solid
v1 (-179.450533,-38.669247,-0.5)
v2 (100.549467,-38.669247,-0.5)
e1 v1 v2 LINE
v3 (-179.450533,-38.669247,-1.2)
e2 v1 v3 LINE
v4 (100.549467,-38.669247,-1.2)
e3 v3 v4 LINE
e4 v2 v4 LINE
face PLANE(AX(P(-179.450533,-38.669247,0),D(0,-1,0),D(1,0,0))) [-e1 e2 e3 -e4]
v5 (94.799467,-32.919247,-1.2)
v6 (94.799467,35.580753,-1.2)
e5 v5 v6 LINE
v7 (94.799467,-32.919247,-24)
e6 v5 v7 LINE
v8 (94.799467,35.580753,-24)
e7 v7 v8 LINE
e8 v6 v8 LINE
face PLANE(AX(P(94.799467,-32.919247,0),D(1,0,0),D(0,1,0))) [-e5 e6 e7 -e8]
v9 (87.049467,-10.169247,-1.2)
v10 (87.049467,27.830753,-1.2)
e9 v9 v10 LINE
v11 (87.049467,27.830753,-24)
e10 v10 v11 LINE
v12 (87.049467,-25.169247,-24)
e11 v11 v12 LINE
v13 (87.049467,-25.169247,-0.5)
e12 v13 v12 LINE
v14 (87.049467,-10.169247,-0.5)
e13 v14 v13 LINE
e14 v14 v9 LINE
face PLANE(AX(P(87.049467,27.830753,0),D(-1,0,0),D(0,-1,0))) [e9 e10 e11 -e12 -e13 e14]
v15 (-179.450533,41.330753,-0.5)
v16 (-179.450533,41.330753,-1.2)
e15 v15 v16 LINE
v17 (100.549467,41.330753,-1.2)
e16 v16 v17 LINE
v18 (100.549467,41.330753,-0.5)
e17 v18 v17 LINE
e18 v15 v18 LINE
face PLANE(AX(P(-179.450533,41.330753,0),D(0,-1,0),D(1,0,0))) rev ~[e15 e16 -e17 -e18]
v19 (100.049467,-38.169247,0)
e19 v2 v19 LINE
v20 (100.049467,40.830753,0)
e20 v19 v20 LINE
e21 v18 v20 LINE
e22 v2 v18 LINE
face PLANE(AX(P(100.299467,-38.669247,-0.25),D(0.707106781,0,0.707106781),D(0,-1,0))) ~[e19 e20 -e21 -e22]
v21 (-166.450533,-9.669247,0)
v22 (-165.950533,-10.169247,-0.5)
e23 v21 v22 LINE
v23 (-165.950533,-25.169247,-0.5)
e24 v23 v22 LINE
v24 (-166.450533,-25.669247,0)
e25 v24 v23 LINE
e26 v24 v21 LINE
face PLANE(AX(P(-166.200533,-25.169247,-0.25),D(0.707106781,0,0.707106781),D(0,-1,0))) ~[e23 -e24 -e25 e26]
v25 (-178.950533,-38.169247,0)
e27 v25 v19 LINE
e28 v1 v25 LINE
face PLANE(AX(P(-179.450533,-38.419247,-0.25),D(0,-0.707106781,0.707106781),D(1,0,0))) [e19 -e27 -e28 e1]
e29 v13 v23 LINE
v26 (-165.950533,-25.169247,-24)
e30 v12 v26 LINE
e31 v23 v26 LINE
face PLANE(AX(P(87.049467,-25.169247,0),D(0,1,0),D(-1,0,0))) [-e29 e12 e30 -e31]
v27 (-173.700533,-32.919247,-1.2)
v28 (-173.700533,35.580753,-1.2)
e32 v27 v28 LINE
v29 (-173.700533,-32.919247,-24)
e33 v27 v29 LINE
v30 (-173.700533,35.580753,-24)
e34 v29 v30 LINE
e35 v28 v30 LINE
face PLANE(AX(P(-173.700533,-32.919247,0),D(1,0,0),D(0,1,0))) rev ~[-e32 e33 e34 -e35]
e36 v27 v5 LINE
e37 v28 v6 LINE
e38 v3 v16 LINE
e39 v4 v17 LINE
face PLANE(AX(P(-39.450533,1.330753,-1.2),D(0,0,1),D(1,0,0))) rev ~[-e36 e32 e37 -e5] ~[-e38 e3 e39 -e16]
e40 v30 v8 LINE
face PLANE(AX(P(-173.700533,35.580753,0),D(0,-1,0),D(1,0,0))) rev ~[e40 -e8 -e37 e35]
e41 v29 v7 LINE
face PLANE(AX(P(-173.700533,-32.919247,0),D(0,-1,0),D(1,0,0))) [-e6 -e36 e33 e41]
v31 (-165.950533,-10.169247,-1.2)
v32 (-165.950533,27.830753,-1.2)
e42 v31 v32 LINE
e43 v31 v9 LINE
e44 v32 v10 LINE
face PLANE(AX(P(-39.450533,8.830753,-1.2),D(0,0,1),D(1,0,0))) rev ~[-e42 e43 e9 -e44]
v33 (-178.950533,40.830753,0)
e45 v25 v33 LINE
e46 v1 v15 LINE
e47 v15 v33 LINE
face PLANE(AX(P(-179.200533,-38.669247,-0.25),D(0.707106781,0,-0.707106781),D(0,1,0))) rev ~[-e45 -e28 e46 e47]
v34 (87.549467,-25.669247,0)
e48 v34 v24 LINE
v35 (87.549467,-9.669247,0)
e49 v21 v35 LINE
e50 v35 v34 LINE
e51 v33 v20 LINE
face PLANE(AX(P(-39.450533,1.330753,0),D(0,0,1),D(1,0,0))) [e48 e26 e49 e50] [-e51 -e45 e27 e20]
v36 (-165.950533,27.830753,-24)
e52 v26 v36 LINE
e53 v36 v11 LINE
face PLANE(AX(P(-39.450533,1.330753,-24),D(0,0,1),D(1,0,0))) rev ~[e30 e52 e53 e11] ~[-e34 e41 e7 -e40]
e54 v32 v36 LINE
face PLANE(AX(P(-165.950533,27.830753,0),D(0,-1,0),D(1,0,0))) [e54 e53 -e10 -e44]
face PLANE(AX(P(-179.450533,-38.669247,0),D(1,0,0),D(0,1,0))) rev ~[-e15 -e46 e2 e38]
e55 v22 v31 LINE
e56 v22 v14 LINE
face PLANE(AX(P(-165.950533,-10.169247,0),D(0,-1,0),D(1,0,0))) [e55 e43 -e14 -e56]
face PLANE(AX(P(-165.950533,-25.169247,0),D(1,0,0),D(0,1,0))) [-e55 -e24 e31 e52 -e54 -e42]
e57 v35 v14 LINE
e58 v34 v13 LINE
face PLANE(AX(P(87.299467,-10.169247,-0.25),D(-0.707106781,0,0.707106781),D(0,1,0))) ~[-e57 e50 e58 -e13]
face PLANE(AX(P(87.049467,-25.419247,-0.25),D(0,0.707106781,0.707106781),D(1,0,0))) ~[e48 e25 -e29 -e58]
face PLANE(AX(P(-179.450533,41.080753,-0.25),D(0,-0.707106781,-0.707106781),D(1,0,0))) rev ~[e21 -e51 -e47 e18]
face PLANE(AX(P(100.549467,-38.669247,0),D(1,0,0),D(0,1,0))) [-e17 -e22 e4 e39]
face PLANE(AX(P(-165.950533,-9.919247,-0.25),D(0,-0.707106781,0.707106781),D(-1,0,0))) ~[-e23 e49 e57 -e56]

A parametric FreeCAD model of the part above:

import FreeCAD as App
import Part
import Sketcher

V = App.Vector
Q = App.Units.Quantity


def edges_at(feature, points):
    """Names of the edges that pass closest to the given points."""
    edges = feature.Shape.Edges
    near = lambda p: min(range(len(edges)), key=lambda i: edges[i].distToShape(Part.Vertex(*p))[0])
    return sorted({f"Edge{near(p) + 1}" for p in points})

doc = App.newDocument("Part")
body = doc.addObject("PartDesign::Body", "Body")

# Sketch on XY plane
sketch1 = body.newObject("Sketcher::SketchObject", "Sketch")
sketch1.AttachmentSupport = (doc.getObject("XY_Plane"), [""])
sketch1.MapMode = "FlatFace"
sketch1.addGeometry(Part.LineSegment(V(-166, 28, 0), V(-166, -10, 0)), False)
sketch1.addGeometry(Part.LineSegment(V(-166, -10, 0), V(87, -10, 0)), False)
sketch1.addGeometry(Part.LineSegment(V(87, -10, 0), V(87, 28, 0)), False)
sketch1.addGeometry(Part.LineSegment(V(87, 28, 0), V(-166, 28, 0)), False)
sketch1.addConstraint(Sketcher.Constraint("Coincident", 0, 2, 1, 1))
sketch1.addConstraint(Sketcher.Constraint("Coincident", 1, 2, 2, 1))
sketch1.addConstraint(Sketcher.Constraint("Coincident", 2, 2, 3, 1))
sketch1.addConstraint(Sketcher.Constraint("Coincident", 3, 2, 0, 1))
sketch1.addConstraint(Sketcher.Constraint("Vertical", 0))
sketch1.addConstraint(Sketcher.Constraint("Horizontal", 1))
sketch1.addConstraint(Sketcher.Constraint("Vertical", 2))
sketch1.addConstraint(Sketcher.Constraint("Horizontal", 3))
sketch1.addConstraint(Sketcher.Constraint("DistanceX", 1, 1, 1, 2, Q("253 mm")))
sketch1.addConstraint(Sketcher.Constraint("DistanceY", 0, 2, 0, 1, Q("38 mm")))
sketch1.addConstraint(Sketcher.Constraint("DistanceX", 0, 2, -1, 1, Q("165.950533 mm")))
sketch1.addConstraint(Sketcher.Constraint("DistanceY", 0, 2, -1, 1, Q("10.169247 mm")))
pad1 = body.newObject("PartDesign::Pad", "Pad")
pad1.Profile = sketch1
pad1.Length = 1.2
pad1.Reversed = True
body2 = doc.addObject("PartDesign::Body", "Body001")

# Sketch on XY plane
sketch2 = body2.newObject("Sketcher::SketchObject", "Sketch001")
sketch2.AttachmentSupport = (doc.getObject("XY_Plane001"), [""])
sketch2.MapMode = "FlatFace"
sketch2.addGeometry(Part.LineSegment(V(-179, 41, 0), V(-179, -39, 0)), False)
sketch2.addGeometry(Part.LineSegment(V(-179, -39, 0), V(101, -39, 0)), False)
sketch2.addGeometry(Part.LineSegment(V(101, -39, 0), V(101, 41, 0)), False)
sketch2.addGeometry(Part.LineSegment(V(101, 41, 0), V(-179, 41, 0)), False)
sketch2.addGeometry(Part.LineSegment(V(95, -33, 0), V(-174, -33, 0)), False)
sketch2.addGeometry(Part.LineSegment(V(-174, -33, 0), V(-174, 36, 0)), False)
sketch2.addGeometry(Part.LineSegment(V(-174, 36, 0), V(95, 36, 0)), False)
sketch2.addGeometry(Part.LineSegment(V(95, 36, 0), V(95, -33, 0)), False)
sketch2.addConstraint(Sketcher.Constraint("Coincident", 0, 2, 1, 1))
sketch2.addConstraint(Sketcher.Constraint("Coincident", 1, 2, 2, 1))
sketch2.addConstraint(Sketcher.Constraint("Coincident", 2, 2, 3, 1))
sketch2.addConstraint(Sketcher.Constraint("Coincident", 3, 2, 0, 1))
sketch2.addConstraint(Sketcher.Constraint("Coincident", 4, 2, 5, 1))
sketch2.addConstraint(Sketcher.Constraint("Coincident", 5, 2, 6, 1))
sketch2.addConstraint(Sketcher.Constraint("Coincident", 6, 2, 7, 1))
sketch2.addConstraint(Sketcher.Constraint("Coincident", 7, 2, 4, 1))
sketch2.addConstraint(Sketcher.Constraint("Vertical", 0))
sketch2.addConstraint(Sketcher.Constraint("Horizontal", 1))
sketch2.addConstraint(Sketcher.Constraint("Vertical", 2))
sketch2.addConstraint(Sketcher.Constraint("Horizontal", 3))
sketch2.addConstraint(Sketcher.Constraint("Horizontal", 4))
sketch2.addConstraint(Sketcher.Constraint("Vertical", 5))
sketch2.addConstraint(Sketcher.Constraint("Horizontal", 6))
sketch2.addConstraint(Sketcher.Constraint("Vertical", 7))
sketch2.addConstraint(Sketcher.Constraint("DistanceX", 1, 1, 1, 2, Q("280 mm")))
sketch2.addConstraint(Sketcher.Constraint("DistanceY", 0, 2, 0, 1, Q("80 mm")))
sketch2.addConstraint(Sketcher.Constraint("DistanceX", 4, 2, 4, 1, Q("268.5 mm")))
sketch2.addConstraint(Sketcher.Constraint("DistanceY", 5, 1, 5, 2, Q("68.5 mm")))
sketch2.addConstraint(Sketcher.Constraint("DistanceX", 0, 2, 4, 2, Q("5.75 mm")))
sketch2.addConstraint(Sketcher.Constraint("DistanceY", 0, 2, 4, 2, Q("5.75 mm")))
sketch2.addConstraint(Sketcher.Constraint("DistanceX", 0, 2, -1, 1, Q("179.450533 mm")))
sketch2.addConstraint(Sketcher.Constraint("DistanceY", 0, 2, -1, 1, Q("38.669247 mm")))
pad2 = body2.newObject("PartDesign::Pad", "Pad001")
pad2.Profile = sketch2
pad2.Length = 1.2
pad2.Reversed = True
body3 = doc.addObject("PartDesign::Body", "Body002")

# Sketch on XY plane
sketch3 = body3.newObject("Sketcher::SketchObject", "Sketch002")
sketch3.AttachmentSupport = (doc.getObject("XY_Plane002"), [""])
sketch3.MapMode = "FlatFace"
sketch3.addGeometry(Part.LineSegment(V(-174, 36, 0), V(-174, -33, 0)), False)
sketch3.addGeometry(Part.LineSegment(V(-174, -33, 0), V(95, -33, 0)), False)
sketch3.addGeometry(Part.LineSegment(V(95, -33, 0), V(95, 36, 0)), False)
sketch3.addGeometry(Part.LineSegment(V(95, 36, 0), V(-174, 36, 0)), False)
sketch3.addGeometry(Part.LineSegment(V(-166, -25, 0), V(-166, 28, 0)), False)
sketch3.addGeometry(Part.LineSegment(V(-166, 28, 0), V(87, 28, 0)), False)
sketch3.addGeometry(Part.LineSegment(V(87, 28, 0), V(87, -25, 0)), False)
sketch3.addGeometry(Part.LineSegment(V(87, -25, 0), V(-166, -25, 0)), False)
sketch3.addConstraint(Sketcher.Constraint("Coincident", 0, 2, 1, 1))
sketch3.addConstraint(Sketcher.Constraint("Coincident", 1, 2, 2, 1))
sketch3.addConstraint(Sketcher.Constraint("Coincident", 2, 2, 3, 1))
sketch3.addConstraint(Sketcher.Constraint("Coincident", 3, 2, 0, 1))
sketch3.addConstraint(Sketcher.Constraint("Coincident", 4, 2, 5, 1))
sketch3.addConstraint(Sketcher.Constraint("Coincident", 5, 2, 6, 1))
sketch3.addConstraint(Sketcher.Constraint("Coincident", 6, 2, 7, 1))
sketch3.addConstraint(Sketcher.Constraint("Coincident", 7, 2, 4, 1))
sketch3.addConstraint(Sketcher.Constraint("Vertical", 0))
sketch3.addConstraint(Sketcher.Constraint("Horizontal", 1))
sketch3.addConstraint(Sketcher.Constraint("Vertical", 2))
sketch3.addConstraint(Sketcher.Constraint("Horizontal", 3))
sketch3.addConstraint(Sketcher.Constraint("Vertical", 4))
sketch3.addConstraint(Sketcher.Constraint("Horizontal", 5))
sketch3.addConstraint(Sketcher.Constraint("Vertical", 6))
sketch3.addConstraint(Sketcher.Constraint("Horizontal", 7))
sketch3.addConstraint(Sketcher.Constraint("DistanceX", 5, 1, 5, 2, Q("253 mm")))
sketch3.addConstraint(Sketcher.Constraint("DistanceY", 4, 1, 4, 2, Q("53 mm")))
sketch3.addConstraint(Sketcher.Constraint("DistanceX", 1, 1, 1, 2, Q("268.5 mm")))
sketch3.addConstraint(Sketcher.Constraint("DistanceY", 0, 2, 0, 1, Q("68.5 mm")))
sketch3.addConstraint(Sketcher.Constraint("DistanceX", 3, 2, 4, 2, Q("7.75 mm")))
sketch3.addConstraint(Sketcher.Constraint("DistanceY", 4, 2, 3, 2, Q("7.75 mm")))
sketch3.addConstraint(Sketcher.Constraint("DistanceX", 0, 2, -1, 1, Q("173.700533 mm")))
sketch3.addConstraint(Sketcher.Constraint("DistanceY", 0, 2, -1, 1, Q("32.919247 mm")))
pad3 = body3.newObject("PartDesign::Pad", "Pad002")
pad3.Profile = sketch3
pad3.Length = 24
pad3.Reversed = True
doc.recompute()

boolean = body3.newObject("PartDesign::Boolean", "Boolean")
boolean.Type = "Fuse"
boolean.addObjects([body])
doc.recompute()

boolean2 = body3.newObject("PartDesign::Boolean", "Boolean001")
boolean2.Type = "Fuse"
boolean2.addObjects([body2])
doc.recompute()

chamfer = body3.newObject("PartDesign::Chamfer", "Chamfer")
chamfer.Base = (boolean2, edges_at(boolean2, [
    (-39.451, -38.669, 0),
    (-179.451, 1.331, 0),
    (-39.451, 41.331, 0),
    (100.549, 1.331, 0),
    (-39.451, -10.169, 0),
    (87.049, -17.669, 0),
    (-39.451, -25.169, 0),
    (-165.951, -17.669, 0),
]))
chamfer.Size = 0.5

doc.recompute()
